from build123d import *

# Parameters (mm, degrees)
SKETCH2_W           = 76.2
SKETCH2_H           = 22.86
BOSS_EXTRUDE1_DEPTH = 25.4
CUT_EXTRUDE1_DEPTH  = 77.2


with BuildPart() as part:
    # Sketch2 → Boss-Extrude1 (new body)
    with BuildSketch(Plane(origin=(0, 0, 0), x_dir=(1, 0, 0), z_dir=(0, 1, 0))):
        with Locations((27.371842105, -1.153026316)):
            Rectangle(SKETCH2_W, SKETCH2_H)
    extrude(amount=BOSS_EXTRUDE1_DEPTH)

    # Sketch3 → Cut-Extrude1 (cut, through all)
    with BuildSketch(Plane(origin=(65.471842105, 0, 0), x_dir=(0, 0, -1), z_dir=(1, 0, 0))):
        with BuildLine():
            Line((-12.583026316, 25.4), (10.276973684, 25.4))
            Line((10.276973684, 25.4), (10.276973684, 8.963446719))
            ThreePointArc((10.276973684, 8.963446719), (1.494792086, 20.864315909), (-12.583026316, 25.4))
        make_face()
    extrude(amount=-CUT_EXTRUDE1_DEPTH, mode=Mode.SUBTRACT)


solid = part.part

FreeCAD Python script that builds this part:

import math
import FreeCAD as App
import Part
import Sketcher

V = App.Vector
Q = App.Units.Quantity

doc = App.newDocument("Part")
body = doc.addObject("PartDesign::Body", "Body")

sketch1 = doc.addObject("Sketcher::SketchObject", "Sketch")
body.addObject(sketch1)
sketch1.AttachmentSupport = (doc.XZ_Plane, [""])
sketch1.MapMode = "FlatFace"
sketch1.addGeometry(Part.LineSegment(V(-11, -10, 0), V(-11, 13, 0)), False)
sketch1.addGeometry(Part.LineSegment(V(-11, 13, 0), V(65, 13, 0)), False)
sketch1.addGeometry(Part.LineSegment(V(65, 13, 0), V(65, -10, 0)), False)
sketch1.addGeometry(Part.LineSegment(V(65, -10, 0), V(-11, -10, 0)), False)
sketch1.addConstraint(Sketcher.Constraint("Coincident", 0, 2, 1, 1))
sketch1.addConstraint(Sketcher.Constraint("Coincident", 1, 2, 2, 1))
sketch1.addConstraint(Sketcher.Constraint("Coincident", 2, 2, 3, 1))
sketch1.addConstraint(Sketcher.Constraint("Coincident", 3, 2, 0, 1))
sketch1.addConstraint(Sketcher.Constraint("Vertical", 0))
sketch1.addConstraint(Sketcher.Constraint("Horizontal", 1))
sketch1.addConstraint(Sketcher.Constraint("Vertical", 2))
sketch1.addConstraint(Sketcher.Constraint("Horizontal", 3))
sketch1.addConstraint(Sketcher.Constraint("DistanceX", 1, 1, 1, 2, Q("3 in")))
sketch1.addConstraint(Sketcher.Constraint("DistanceY", 0, 1, 0, 2, Q("0.9 in")))
sketch1.addConstraint(Sketcher.Constraint("DistanceX", 0, 2, -1, 1, 10.728158))
sketch1.addConstraint(Sketcher.Constraint("DistanceY", -1, 1, 0, 2, 12.583026))
pad1 = doc.addObject("PartDesign::Pad", "Pad")
body.addObject(pad1)
pad1.Profile = sketch1
pad1.Length = Q("1 in")
pad1.Reversed = True

sketch2 = doc.addObject("Sketcher::SketchObject", "Sketch001")
body.addObject(sketch2)
sketch2.AttachmentSupport = (doc.YZ_Plane, [""])
sketch2.MapMode = "FlatFace"
sketch2.AttachmentOffset = App.Placement(V(0, 0, 65.471842), App.Rotation())
sketch2.addGeometry(Part.LineSegment(V(25, -10, 0), V(25, 13, 0)), False)
sketch2.addGeometry(Part.ArcOfCircle(Part.Circle(V(1, 13, 0), V(0, 0, 1), 24), math.radians(-71), math.radians(0)), False)
sketch2.addGeometry(Part.LineSegment(V(9, -10, 0), V(25, -10, 0)), False)
sketch2.addConstraint(Sketcher.Constraint("Tangent", 0, 2, 1, 2))
sketch2.addConstraint(Sketcher.Constraint("Coincident", 1, 1, 2, 1))
sketch2.addConstraint(Sketcher.Constraint("Coincident", 2, 2, 0, 1))
sketch2.addConstraint(Sketcher.Constraint("Vertical", 0))
sketch2.addConstraint(Sketcher.Constraint("Horizontal", 2))
sketch2.addConstraint(Sketcher.Constraint("DistanceY", 0, 1, 0, 2, Q("0.9 in")))
sketch2.addConstraint(Sketcher.Constraint("DistanceX", -1, 1, 0, 2, Q("1 in")))
sketch2.addConstraint(Sketcher.Constraint("Radius", 1, 24.11515))
sketch2.addConstraint(Sketcher.Constraint("DistanceY", -1, 1, 1, 3, 12.583026))
pocket1 = doc.addObject("PartDesign::Pocket", "Pocket")
body.addObject(pocket1)
pocket1.Profile = sketch2
pocket1.Type = "ThroughAll"

doc.recompute()
